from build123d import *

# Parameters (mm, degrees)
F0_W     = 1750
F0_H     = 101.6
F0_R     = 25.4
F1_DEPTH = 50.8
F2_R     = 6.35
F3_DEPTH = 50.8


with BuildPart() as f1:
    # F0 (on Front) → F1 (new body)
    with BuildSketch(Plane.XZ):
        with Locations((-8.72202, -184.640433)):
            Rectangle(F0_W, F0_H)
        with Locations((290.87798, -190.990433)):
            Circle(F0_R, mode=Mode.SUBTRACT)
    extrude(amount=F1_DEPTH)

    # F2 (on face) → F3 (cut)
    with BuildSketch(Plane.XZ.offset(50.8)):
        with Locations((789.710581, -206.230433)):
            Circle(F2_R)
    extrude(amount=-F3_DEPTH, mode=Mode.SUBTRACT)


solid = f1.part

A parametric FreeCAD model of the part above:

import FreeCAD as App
import Part
import Sketcher
from FreeCAD import Vector
Q = App.Units.Quantity

doc = App.newDocument("Part")
body = doc.addObject("PartDesign::Body", "Body")

sketch1 = body.newObject("Sketcher::SketchObject", "Sketch")
sketch1.AttachmentSupport = (doc.getObject("XZ_Plane"), [""])
sketch1.MapMode = "FlatFace"
sketch1.addGeometry([
    Part.LineSegment(Vector(-883.72202, -133.840433, 0), Vector(-883.72202, -235.440433, 0)),
    Part.LineSegment(Vector(-883.72202, -235.440433, 0), Vector(866.27798, -235.440433, 0)),
    Part.LineSegment(Vector(866.27798, -235.440433, 0), Vector(866.27798, -133.840433, 0)),
    Part.LineSegment(Vector(866.27798, -133.840433, 0), Vector(-883.72202, -133.840433, 0)),
    Part.Circle(Vector(290.87798, -190.990433, 0), Vector(0, 0, 1), 25.4),
], False)
sketch1.addConstraint([
    Sketcher.Constraint("Coincident", 0, 2, 1, 1),
    Sketcher.Constraint("Coincident", 1, 2, 2, 1),
    Sketcher.Constraint("Coincident", 2, 2, 3, 1),
    Sketcher.Constraint("Coincident", 3, 2, 0, 1),
    Sketcher.Constraint("Vertical", 0),
    Sketcher.Constraint("Horizontal", 1),
    Sketcher.Constraint("Vertical", 2),
    Sketcher.Constraint("Horizontal", 3),
    Sketcher.Constraint("Diameter", 4, Q("2 in")),
    Sketcher.Constraint("DistanceY", 0, 2, 0, 1, Q("4 in")),
    Sketcher.Constraint("DistanceY", 0, 2, 4, 3, Q("1.75 in")),
    Sketcher.Constraint("DistanceX", 1, 1, 1, 2, Q("1750 mm")),
    Sketcher.Constraint("DistanceX", 0, 2, 4, 3, Q("1174.6 mm")),
    Sketcher.Constraint("DistanceX", -1, 1, 4, 3, Q("290.87798 mm")),
    Sketcher.Constraint("DistanceY", 4, 3, -1, 1, Q("190.990433 mm")),
])
pad1 = body.newObject("PartDesign::Pad", "Pad")
pad1.Profile = sketch1
pad1.Length = Q("2 in")

sketch2 = body.newObject("Sketcher::SketchObject", "Sketch001")
sketch2.AttachmentSupport = (doc.getObject("XZ_Plane"), [""])
sketch2.MapMode = "FlatFace"
sketch2.AttachmentOffset = App.Placement(Vector(0, 0, 2 * 25.4), App.Rotation())
sketch2.addGeometry(Part.Circle(Vector(789.710581, -206.230433, 0), Vector(0, 0, 1), 6.35), False)
sketch2.addConstraint([
    Sketcher.Constraint("Diameter", 0, Q("0.5 in")),
    Sketcher.Constraint("DistanceX", -1, 1, 0, 3, Q("789.710581 mm")),
    Sketcher.Constraint("DistanceY", 0, 3, -1, 1, Q("206.230433 mm")),
])
pocket1 = body.newObject("PartDesign::Pocket", "Pocket")
pocket1.Profile = sketch2
pocket1.Length = Q("2 in")

doc.recompute()
